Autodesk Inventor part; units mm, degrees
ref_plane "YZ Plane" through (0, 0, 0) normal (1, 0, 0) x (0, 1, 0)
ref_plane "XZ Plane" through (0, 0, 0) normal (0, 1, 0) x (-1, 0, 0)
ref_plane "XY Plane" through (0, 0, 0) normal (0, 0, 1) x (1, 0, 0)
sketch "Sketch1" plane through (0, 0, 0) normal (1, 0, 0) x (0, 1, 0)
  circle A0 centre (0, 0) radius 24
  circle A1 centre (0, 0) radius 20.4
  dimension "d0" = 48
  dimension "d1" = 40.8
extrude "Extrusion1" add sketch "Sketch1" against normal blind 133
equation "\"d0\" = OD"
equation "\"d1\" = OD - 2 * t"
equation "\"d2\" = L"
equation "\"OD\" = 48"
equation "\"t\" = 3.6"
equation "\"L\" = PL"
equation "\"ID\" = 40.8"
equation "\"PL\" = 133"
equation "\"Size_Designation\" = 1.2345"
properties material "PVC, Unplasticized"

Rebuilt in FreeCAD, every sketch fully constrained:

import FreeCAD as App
import Part
import Sketcher
from FreeCAD import Vector

doc = App.newDocument("Part")
body = doc.addObject("PartDesign::Body", "Body")

# Sketch on YZ plane
sketch1 = doc.addObject("Sketcher::SketchObject", "Sketch")
body.addObject(sketch1)
sketch1.AttachmentSupport = (doc.YZ_Plane, [""])
sketch1.MapMode = "FlatFace"
sketch1.addGeometry(Part.Circle(Vector(0, 0, 0), Vector(0, 0, 1), 24), False)
sketch1.addGeometry(Part.Circle(Vector(0, 0, 0), Vector(0, 0, 1), 20), False)
sketch1.addConstraint(Sketcher.Constraint("Coincident", 0, 3, -1, 1))
sketch1.addConstraint(Sketcher.Constraint("Coincident", 1, 3, -1, 1))
sketch1.addConstraint(Sketcher.Constraint("Diameter", 0, 48.0))
sketch1.addConstraint(Sketcher.Constraint("Diameter", 1, 40.8))
pad1 = doc.addObject("PartDesign::Pad", "Pad")
body.addObject(pad1)
pad1.Profile = sketch1
pad1.Length = 133
pad1.Reversed = True

doc.recompute()
